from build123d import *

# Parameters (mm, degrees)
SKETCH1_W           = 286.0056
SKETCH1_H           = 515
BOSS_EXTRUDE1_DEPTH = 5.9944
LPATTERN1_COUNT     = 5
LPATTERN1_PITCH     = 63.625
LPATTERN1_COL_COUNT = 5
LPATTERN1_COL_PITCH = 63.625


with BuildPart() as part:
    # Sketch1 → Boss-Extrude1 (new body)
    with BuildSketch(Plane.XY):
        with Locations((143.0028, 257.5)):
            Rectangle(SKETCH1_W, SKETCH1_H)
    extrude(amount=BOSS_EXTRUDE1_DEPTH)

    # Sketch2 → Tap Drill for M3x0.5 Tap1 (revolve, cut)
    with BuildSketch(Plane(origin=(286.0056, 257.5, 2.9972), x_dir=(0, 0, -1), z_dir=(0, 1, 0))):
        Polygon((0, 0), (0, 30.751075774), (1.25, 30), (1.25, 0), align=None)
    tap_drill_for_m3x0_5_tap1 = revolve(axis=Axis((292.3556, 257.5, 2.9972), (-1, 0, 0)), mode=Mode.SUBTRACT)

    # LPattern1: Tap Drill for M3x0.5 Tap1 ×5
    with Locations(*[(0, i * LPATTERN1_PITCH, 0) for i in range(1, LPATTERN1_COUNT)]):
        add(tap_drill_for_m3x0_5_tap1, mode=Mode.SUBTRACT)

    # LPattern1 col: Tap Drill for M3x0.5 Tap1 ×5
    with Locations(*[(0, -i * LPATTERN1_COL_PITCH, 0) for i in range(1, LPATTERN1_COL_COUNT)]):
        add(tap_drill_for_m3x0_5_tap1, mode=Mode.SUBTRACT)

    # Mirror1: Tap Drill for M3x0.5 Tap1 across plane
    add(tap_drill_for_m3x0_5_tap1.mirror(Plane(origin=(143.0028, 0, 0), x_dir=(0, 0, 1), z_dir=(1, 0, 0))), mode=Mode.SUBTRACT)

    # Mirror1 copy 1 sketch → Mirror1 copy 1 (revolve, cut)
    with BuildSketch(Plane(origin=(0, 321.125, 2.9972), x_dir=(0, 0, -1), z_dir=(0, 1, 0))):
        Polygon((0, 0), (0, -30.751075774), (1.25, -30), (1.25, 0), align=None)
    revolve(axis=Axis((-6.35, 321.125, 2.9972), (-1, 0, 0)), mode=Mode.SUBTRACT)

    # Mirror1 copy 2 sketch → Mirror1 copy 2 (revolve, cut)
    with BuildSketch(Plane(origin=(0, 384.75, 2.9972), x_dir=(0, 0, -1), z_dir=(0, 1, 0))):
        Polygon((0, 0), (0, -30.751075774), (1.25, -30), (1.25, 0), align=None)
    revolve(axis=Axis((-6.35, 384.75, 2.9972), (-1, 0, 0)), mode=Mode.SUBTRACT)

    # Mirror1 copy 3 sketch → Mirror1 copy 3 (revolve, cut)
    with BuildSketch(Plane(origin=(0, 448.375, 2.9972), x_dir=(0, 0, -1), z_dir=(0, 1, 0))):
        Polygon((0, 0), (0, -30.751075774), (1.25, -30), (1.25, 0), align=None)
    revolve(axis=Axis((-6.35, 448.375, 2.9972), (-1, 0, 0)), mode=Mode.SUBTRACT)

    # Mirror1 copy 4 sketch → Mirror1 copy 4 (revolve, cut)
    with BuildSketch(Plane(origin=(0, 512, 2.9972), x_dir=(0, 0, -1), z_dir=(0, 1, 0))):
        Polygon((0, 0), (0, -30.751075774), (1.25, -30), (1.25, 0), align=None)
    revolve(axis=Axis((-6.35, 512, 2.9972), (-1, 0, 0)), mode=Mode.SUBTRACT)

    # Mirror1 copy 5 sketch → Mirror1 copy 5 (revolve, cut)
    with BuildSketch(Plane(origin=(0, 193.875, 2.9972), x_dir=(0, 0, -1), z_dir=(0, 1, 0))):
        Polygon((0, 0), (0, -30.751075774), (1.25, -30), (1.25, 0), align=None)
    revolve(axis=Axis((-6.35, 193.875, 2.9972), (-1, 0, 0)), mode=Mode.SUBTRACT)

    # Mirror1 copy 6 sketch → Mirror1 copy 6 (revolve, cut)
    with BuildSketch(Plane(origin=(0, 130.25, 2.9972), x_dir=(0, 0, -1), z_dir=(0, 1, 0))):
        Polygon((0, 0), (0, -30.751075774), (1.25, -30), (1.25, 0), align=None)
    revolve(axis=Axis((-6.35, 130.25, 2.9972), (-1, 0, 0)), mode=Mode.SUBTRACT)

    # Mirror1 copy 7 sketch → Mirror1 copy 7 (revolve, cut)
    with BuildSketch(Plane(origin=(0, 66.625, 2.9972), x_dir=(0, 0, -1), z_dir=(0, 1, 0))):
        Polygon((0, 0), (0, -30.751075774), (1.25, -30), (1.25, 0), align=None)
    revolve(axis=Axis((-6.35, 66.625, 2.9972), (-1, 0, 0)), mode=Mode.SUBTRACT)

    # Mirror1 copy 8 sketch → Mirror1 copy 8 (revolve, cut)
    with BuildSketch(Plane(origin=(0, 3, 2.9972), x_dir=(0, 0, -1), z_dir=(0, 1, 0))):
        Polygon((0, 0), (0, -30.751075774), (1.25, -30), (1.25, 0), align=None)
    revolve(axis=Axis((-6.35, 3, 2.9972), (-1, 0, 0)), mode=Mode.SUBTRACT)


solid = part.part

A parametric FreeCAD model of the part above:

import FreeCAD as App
import Part
import Sketcher
from FreeCAD import Vector
Q = App.Units.Quantity

doc = App.newDocument("Part")
params = doc.addObject("Spreadsheet::Sheet", "Params")
for row, (alias, value) in enumerate([
    ("sketch1_height", "515 mm"),
    ("pad1_length", "5.9944 mm"),
    ("sketch2_width", "30 mm"),
    ("sketch2_height", "1.25 mm"),
    ("groove_angle", "360 deg"),
    ("linearpattern_pitch", "63.625 mm"),
    ("linearpattern2_pitch", "63.625 mm"),
    ("sketch3_width", "30 mm"),
    ("sketch3_height", "1.25 mm"),
    ("groove2_angle", "360 deg"),
    ("sketch4_width", "30 mm"),
    ("sketch4_height", "1.25 mm"),
    ("groove3_angle", "360 deg"),
    ("sketch5_width", "30 mm"),
    ("sketch5_height", "1.25 mm"),
    ("groove4_angle", "360 deg"),
    ("sketch6_width", "30 mm"),
    ("sketch6_height", "1.25 mm"),
    ("groove5_angle", "360 deg"),
    ("sketch7_width", "30 mm"),
    ("sketch7_height", "1.25 mm"),
    ("groove6_angle", "360 deg"),
    ("sketch8_width", "30 mm"),
    ("sketch8_height", "1.25 mm"),
    ("groove7_angle", "360 deg"),
    ("sketch9_width", "30 mm"),
    ("sketch9_height", "1.25 mm"),
    ("groove8_angle", "360 deg"),
    ("sketch10_width", "30 mm"),
    ("sketch10_height", "1.25 mm"),
    ("groove9_angle", "360 deg"),
], start=1):
    params.set(f"A{row}", alias)
    params.set(f"B{row}", "=" + value)
    params.setAlias(f"B{row}", alias)

body = doc.addObject("PartDesign::Body", "Body")

# Sketch on XY plane
sketch1 = doc.addObject("Sketcher::SketchObject", "Sketch")
body.addObject(sketch1)
sketch1.AttachmentSupport = (doc.XY_Plane, [""])
sketch1.MapMode = "FlatFace"
sketch1.addGeometry([
    Part.LineSegment(Vector(0, 515, 0), Vector(0, 0, 0)),
    Part.LineSegment(Vector(0, 0, 0), Vector(286.0056, 0, 0)),
    Part.LineSegment(Vector(286.0056, 0, 0), Vector(286.0056, 515, 0)),
    Part.LineSegment(Vector(286.0056, 515, 0), Vector(0, 515, 0)),
], False)
sketch1.addConstraint([
    Sketcher.Constraint("Coincident", 0, 2, 1, 1),
    Sketcher.Constraint("Coincident", 1, 2, 2, 1),
    Sketcher.Constraint("Coincident", 2, 2, 3, 1),
    Sketcher.Constraint("Coincident", 3, 2, 0, 1),
    Sketcher.Constraint("Vertical", 0),
    Sketcher.Constraint("Horizontal", 1),
    Sketcher.Constraint("Vertical", 2),
    Sketcher.Constraint("Horizontal", 3),
    Sketcher.Constraint("Coincident", 0, 2, -1, 1),
    Sketcher.Constraint("DistanceY", 0, 2, 0, 1, 515.0),
    Sketcher.Constraint("DistanceX", 1, 1, 1, 2, 286.0056),
])
sketch1.setExpression("Constraints[9]", "Params.sketch1_height")
pad1 = doc.addObject("PartDesign::Pad", "Pad")
body.addObject(pad1)
pad1.Profile = sketch1
pad1.setExpression("Length", "Params.pad1_length")

# Sketch on XZ plane
sketch2 = doc.addObject("Sketcher::SketchObject", "Sketch001")
body.addObject(sketch2)
sketch2.AttachmentSupport = (doc.XZ_Plane, [""])
sketch2.MapMode = "FlatFace"
sketch2.AttachmentOffset = App.Placement(Vector(0, 0, -257.5), App.Rotation())
sketch2.addGeometry([
    Part.LineSegment(Vector(255.254524, 2.9972, 0), Vector(286.0056, 2.9972, 0)),
    Part.LineSegment(Vector(286.0056, 2.9972, 0), Vector(286.0056, 1.7472, 0)),
    Part.LineSegment(Vector(286.0056, 1.7472, 0), Vector(256.0056, 1.7472, 0)),
    Part.LineSegment(Vector(256.0056, 1.7472, 0), Vector(255.254524, 2.9972, 0)),
], False)
sketch2.addGeometry(Part.LineSegment(Vector(286.0056, 2.9972, 0), Vector(255.254524, 2.9972, 0)), True)  # axis
sketch2.addConstraint([
    Sketcher.Constraint("Coincident", 0, 2, 1, 1),
    Sketcher.Constraint("Coincident", 1, 2, 2, 1),
    Sketcher.Constraint("Coincident", 2, 2, 3, 1),
    Sketcher.Constraint("Coincident", 3, 2, 0, 1),
    Sketcher.Constraint("Horizontal", 0),
    Sketcher.Constraint("Vertical", 1),
    Sketcher.Constraint("Horizontal", 2),
    Sketcher.Constraint("Horizontal", 4),
    Sketcher.Constraint("Coincident", 4, 1, 0, 2),
    Sketcher.Constraint("Equal", 0, 4),
    Sketcher.Constraint("DistanceX", 2, 2, 2, 1, 30.0),
    Sketcher.Constraint("Angle", 3, Q("121 deg")),
    Sketcher.Constraint("DistanceY", 1, 2, 1, 1, 1.25),
    Sketcher.Constraint("DistanceX", -1, 1, 0, 2, 286.0056),
    Sketcher.Constraint("DistanceY", -1, 1, 0, 2, 2.9972),
])
sketch2.setExpression("Constraints[10]", "Params.sketch2_width")
sketch2.setExpression("Constraints[12]", "Params.sketch2_height")
groove = doc.addObject("PartDesign::Groove", "Groove")
body.addObject(groove)
groove.Profile = sketch2
groove.ReferenceAxis = (sketch2, ["Axis0"])
groove.setExpression("Angle", "Params.groove_angle")
doc.recompute()

linearpattern = doc.addObject("PartDesign::LinearPattern", "LinearPattern")
body.addObject(linearpattern)
linearpattern.Originals = [groove]
linearpattern.Direction = (doc.Y_Axis, [""])
linearpattern.Mode = "offset"
linearpattern.setExpression("Offset", "Params.linearpattern_pitch")
linearpattern.Occurrences = 5
body.Tip = linearpattern
doc.recompute()

linearpattern2 = doc.addObject("PartDesign::LinearPattern", "LinearPattern001")
body.addObject(linearpattern2)
linearpattern2.Originals = [groove]
linearpattern2.Direction = (doc.Y_Axis, [""])
linearpattern2.Mode = "offset"
linearpattern2.setExpression("Offset", "Params.linearpattern2_pitch")
linearpattern2.Occurrences = 5
linearpattern2.Reversed = True
body.Tip = linearpattern2
doc.recompute()

datumplane = doc.addObject("PartDesign::Plane", "DatumPlane")
body.addObject(datumplane)
datumplane.AttachmentSupport = (doc.YZ_Plane, [""])
datumplane.MapMode = "FlatFace"
datumplane.AttachmentOffset = App.Placement(Vector(0, 0, 143.0028), App.Rotation())
mirrored = doc.addObject("PartDesign::Mirrored", "Mirrored")
body.addObject(mirrored)
mirrored.Originals = [groove]
mirrored.MirrorPlane = (datumplane, [""])
body.Tip = mirrored

# Sketch on XZ plane
sketch3 = doc.addObject("Sketcher::SketchObject", "Sketch002")
body.addObject(sketch3)
sketch3.AttachmentSupport = (doc.XZ_Plane, [""])
sketch3.MapMode = "FlatFace"
sketch3.AttachmentOffset = App.Placement(Vector(0, 0, -321.125), App.Rotation())
sketch3.addGeometry([
    Part.LineSegment(Vector(0, 2.9972, 0), Vector(30.751076, 2.9972, 0)),
    Part.LineSegment(Vector(30.751076, 2.9972, 0), Vector(30, 1.7472, 0)),
    Part.LineSegment(Vector(30, 1.7472, 0), Vector(0, 1.7472, 0)),
    Part.LineSegment(Vector(0, 1.7472, 0), Vector(0, 2.9972, 0)),
], False)
sketch3.addGeometry(Part.LineSegment(Vector(30.751076, 2.9972, 0), Vector(0, 2.9972, 0)), True)  # axis
sketch3.addConstraint([
    Sketcher.Constraint("Coincident", 0, 2, 1, 1),
    Sketcher.Constraint("Coincident", 1, 2, 2, 1),
    Sketcher.Constraint("Coincident", 2, 2, 3, 1),
    Sketcher.Constraint("Coincident", 3, 2, 0, 1),
    Sketcher.Constraint("Horizontal", 0),
    Sketcher.Constraint("Horizontal", 2),
    Sketcher.Constraint("Vertical", 3),
    Sketcher.Constraint("Horizontal", 4),
    Sketcher.Constraint("Coincident", 4, 1, 0, 2),
    Sketcher.Constraint("PointOnObject", 2, 2, -2),
    Sketcher.Constraint("PointOnObject", 4, 2, -2),
    Sketcher.Constraint("DistanceX", 2, 2, 2, 1, 30.0),
    Sketcher.Constraint("Angle", 1, Q("-121 deg")),
    Sketcher.Constraint("DistanceY", 3, 1, 3, 2, 1.25),
    Sketcher.Constraint("DistanceY", -1, 1, 0, 2, 2.9972),
])
sketch3.setExpression("Constraints[11]", "Params.sketch3_width")
sketch3.setExpression("Constraints[13]", "Params.sketch3_height")
groove2 = doc.addObject("PartDesign::Groove", "Groove001")
body.addObject(groove2)
groove2.Profile = sketch3
groove2.ReferenceAxis = (sketch3, ["Axis0"])
groove2.setExpression("Angle", "Params.groove2_angle")

# Sketch on XZ plane
sketch4 = doc.addObject("Sketcher::SketchObject", "Sketch003")
body.addObject(sketch4)
sketch4.AttachmentSupport = (doc.XZ_Plane, [""])
sketch4.MapMode = "FlatFace"
sketch4.AttachmentOffset = App.Placement(Vector(0, 0, -384.75), App.Rotation())
sketch4.addGeometry([
    Part.LineSegment(Vector(0, 2.9972, 0), Vector(30.751076, 2.9972, 0)),
    Part.LineSegment(Vector(30.751076, 2.9972, 0), Vector(30, 1.7472, 0)),
    Part.LineSegment(Vector(30, 1.7472, 0), Vector(0, 1.7472, 0)),
    Part.LineSegment(Vector(0, 1.7472, 0), Vector(0, 2.9972, 0)),
], False)
sketch4.addGeometry(Part.LineSegment(Vector(30.751076, 2.9972, 0), Vector(0, 2.9972, 0)), True)  # axis
sketch4.addConstraint([
    Sketcher.Constraint("Coincident", 0, 2, 1, 1),
    Sketcher.Constraint("Coincident", 1, 2, 2, 1),
    Sketcher.Constraint("Coincident", 2, 2, 3, 1),
    Sketcher.Constraint("Coincident", 3, 2, 0, 1),
    Sketcher.Constraint("Horizontal", 0),
    Sketcher.Constraint("Horizontal", 2),
    Sketcher.Constraint("Vertical", 3),
    Sketcher.Constraint("Horizontal", 4),
    Sketcher.Constraint("Coincident", 4, 1, 0, 2),
    Sketcher.Constraint("PointOnObject", 2, 2, -2),
    Sketcher.Constraint("PointOnObject", 4, 2, -2),
    Sketcher.Constraint("DistanceX", 2, 2, 2, 1, 30.0),
    Sketcher.Constraint("Angle", 1, Q("-121 deg")),
    Sketcher.Constraint("DistanceY", 3, 1, 3, 2, 1.25),
    Sketcher.Constraint("DistanceY", -1, 1, 0, 2, 2.9972),
])
sketch4.setExpression("Constraints[11]", "Params.sketch4_width")
sketch4.setExpression("Constraints[13]", "Params.sketch4_height")
groove3 = doc.addObject("PartDesign::Groove", "Groove002")
body.addObject(groove3)
groove3.Profile = sketch4
groove3.ReferenceAxis = (sketch4, ["Axis0"])
groove3.setExpression("Angle", "Params.groove3_angle")

# Sketch on XZ plane
sketch5 = doc.addObject("Sketcher::SketchObject", "Sketch004")
body.addObject(sketch5)
sketch5.AttachmentSupport = (doc.XZ_Plane, [""])
sketch5.MapMode = "FlatFace"
sketch5.AttachmentOffset = App.Placement(Vector(0, 0, -448.375), App.Rotation())
sketch5.addGeometry([
    Part.LineSegment(Vector(0, 2.9972, 0), Vector(30.751076, 2.9972, 0)),
    Part.LineSegment(Vector(30.751076, 2.9972, 0), Vector(30, 1.7472, 0)),
    Part.LineSegment(Vector(30, 1.7472, 0), Vector(0, 1.7472, 0)),
    Part.LineSegment(Vector(0, 1.7472, 0), Vector(0, 2.9972, 0)),
], False)
sketch5.addGeometry(Part.LineSegment(Vector(30.751076, 2.9972, 0), Vector(0, 2.9972, 0)), True)  # axis
sketch5.addConstraint([
    Sketcher.Constraint("Coincident", 0, 2, 1, 1),
    Sketcher.Constraint("Coincident", 1, 2, 2, 1),
    Sketcher.Constraint("Coincident", 2, 2, 3, 1),
    Sketcher.Constraint("Coincident", 3, 2, 0, 1),
    Sketcher.Constraint("Horizontal", 0),
    Sketcher.Constraint("Horizontal", 2),
    Sketcher.Constraint("Vertical", 3),
    Sketcher.Constraint("Horizontal", 4),
    Sketcher.Constraint("Coincident", 4, 1, 0, 2),
    Sketcher.Constraint("PointOnObject", 2, 2, -2),
    Sketcher.Constraint("PointOnObject", 4, 2, -2),
    Sketcher.Constraint("DistanceX", 2, 2, 2, 1, 30.0),
    Sketcher.Constraint("Angle", 1, Q("-121 deg")),
    Sketcher.Constraint("DistanceY", 3, 1, 3, 2, 1.25),
    Sketcher.Constraint("DistanceY", -1, 1, 0, 2, 2.9972),
])
sketch5.setExpression("Constraints[11]", "Params.sketch5_width")
sketch5.setExpression("Constraints[13]", "Params.sketch5_height")
groove4 = doc.addObject("PartDesign::Groove", "Groove003")
body.addObject(groove4)
groove4.Profile = sketch5
groove4.ReferenceAxis = (sketch5, ["Axis0"])
groove4.setExpression("Angle", "Params.groove4_angle")

# Sketch on XZ plane
sketch6 = doc.addObject("Sketcher::SketchObject", "Sketch005")
body.addObject(sketch6)
sketch6.AttachmentSupport = (doc.XZ_Plane, [""])
sketch6.MapMode = "FlatFace"
sketch6.AttachmentOffset = App.Placement(Vector(0, 0, -512), App.Rotation())
sketch6.addGeometry([
    Part.LineSegment(Vector(0, 2.9972, 0), Vector(30.751076, 2.9972, 0)),
    Part.LineSegment(Vector(30.751076, 2.9972, 0), Vector(30, 1.7472, 0)),
    Part.LineSegment(Vector(30, 1.7472, 0), Vector(0, 1.7472, 0)),
    Part.LineSegment(Vector(0, 1.7472, 0), Vector(0, 2.9972, 0)),
], False)
sketch6.addGeometry(Part.LineSegment(Vector(30.751076, 2.9972, 0), Vector(0, 2.9972, 0)), True)  # axis
sketch6.addConstraint([
    Sketcher.Constraint("Coincident", 0, 2, 1, 1),
    Sketcher.Constraint("Coincident", 1, 2, 2, 1),
    Sketcher.Constraint("Coincident", 2, 2, 3, 1),
    Sketcher.Constraint("Coincident", 3, 2, 0, 1),
    Sketcher.Constraint("Horizontal", 0),
    Sketcher.Constraint("Horizontal", 2),
    Sketcher.Constraint("Vertical", 3),
    Sketcher.Constraint("Horizontal", 4),
    Sketcher.Constraint("Coincident", 4, 1, 0, 2),
    Sketcher.Constraint("PointOnObject", 2, 2, -2),
    Sketcher.Constraint("PointOnObject", 4, 2, -2),
    Sketcher.Constraint("DistanceX", 2, 2, 2, 1, 30.0),
    Sketcher.Constraint("Angle", 1, Q("-121 deg")),
    Sketcher.Constraint("DistanceY", 3, 1, 3, 2, 1.25),
    Sketcher.Constraint("DistanceY", -1, 1, 0, 2, 2.9972),
])
sketch6.setExpression("Constraints[11]", "Params.sketch6_width")
sketch6.setExpression("Constraints[13]", "Params.sketch6_height")
groove5 = doc.addObject("PartDesign::Groove", "Groove004")
body.addObject(groove5)
groove5.Profile = sketch6
groove5.ReferenceAxis = (sketch6, ["Axis0"])
groove5.setExpression("Angle", "Params.groove5_angle")

# Sketch on XZ plane
sketch7 = doc.addObject("Sketcher::SketchObject", "Sketch006")
body.addObject(sketch7)
sketch7.AttachmentSupport = (doc.XZ_Plane, [""])
sketch7.MapMode = "FlatFace"
sketch7.AttachmentOffset = App.Placement(Vector(0, 0, -193.875), App.Rotation())
sketch7.addGeometry([
    Part.LineSegment(Vector(0, 2.9972, 0), Vector(30.751076, 2.9972, 0)),
    Part.LineSegment(Vector(30.751076, 2.9972, 0), Vector(30, 1.7472, 0)),
    Part.LineSegment(Vector(30, 1.7472, 0), Vector(0, 1.7472, 0)),
    Part.LineSegment(Vector(0, 1.7472, 0), Vector(0, 2.9972, 0)),
], False)
sketch7.addGeometry(Part.LineSegment(Vector(30.751076, 2.9972, 0), Vector(0, 2.9972, 0)), True)  # axis
sketch7.addConstraint([
    Sketcher.Constraint("Coincident", 0, 2, 1, 1),
    Sketcher.Constraint("Coincident", 1, 2, 2, 1),
    Sketcher.Constraint("Coincident", 2, 2, 3, 1),
    Sketcher.Constraint("Coincident", 3, 2, 0, 1),
    Sketcher.Constraint("Horizontal", 0),
    Sketcher.Constraint("Horizontal", 2),
    Sketcher.Constraint("Vertical", 3),
    Sketcher.Constraint("Horizontal", 4),
    Sketcher.Constraint("Coincident", 4, 1, 0, 2),
    Sketcher.Constraint("PointOnObject", 2, 2, -2),
    Sketcher.Constraint("PointOnObject", 4, 2, -2),
    Sketcher.Constraint("DistanceX", 2, 2, 2, 1, 30.0),
    Sketcher.Constraint("Angle", 1, Q("-121 deg")),
    Sketcher.Constraint("DistanceY", 3, 1, 3, 2, 1.25),
    Sketcher.Constraint("DistanceY", -1, 1, 0, 2, 2.9972),
])
sketch7.setExpression("Constraints[11]", "Params.sketch7_width")
sketch7.setExpression("Constraints[13]", "Params.sketch7_height")
groove6 = doc.addObject("PartDesign::Groove", "Groove005")
body.addObject(groove6)
groove6.Profile = sketch7
groove6.ReferenceAxis = (sketch7, ["Axis0"])
groove6.setExpression("Angle", "Params.groove6_angle")

# Sketch on XZ plane
sketch8 = doc.addObject("Sketcher::SketchObject", "Sketch007")
body.addObject(sketch8)
sketch8.AttachmentSupport = (doc.XZ_Plane, [""])
sketch8.MapMode = "FlatFace"
sketch8.AttachmentOffset = App.Placement(Vector(0, 0, -130.25), App.Rotation())
sketch8.addGeometry([
    Part.LineSegment(Vector(0, 2.9972, 0), Vector(30.751076, 2.9972, 0)),
    Part.LineSegment(Vector(30.751076, 2.9972, 0), Vector(30, 1.7472, 0)),
    Part.LineSegment(Vector(30, 1.7472, 0), Vector(0, 1.7472, 0)),
    Part.LineSegment(Vector(0, 1.7472, 0), Vector(0, 2.9972, 0)),
], False)
sketch8.addGeometry(Part.LineSegment(Vector(30.751076, 2.9972, 0), Vector(0, 2.9972, 0)), True)  # axis
sketch8.addConstraint([
    Sketcher.Constraint("Coincident", 0, 2, 1, 1),
    Sketcher.Constraint("Coincident", 1, 2, 2, 1),
    Sketcher.Constraint("Coincident", 2, 2, 3, 1),
    Sketcher.Constraint("Coincident", 3, 2, 0, 1),
    Sketcher.Constraint("Horizontal", 0),
    Sketcher.Constraint("Horizontal", 2),
    Sketcher.Constraint("Vertical", 3),
    Sketcher.Constraint("Horizontal", 4),
    Sketcher.Constraint("Coincident", 4, 1, 0, 2),
    Sketcher.Constraint("PointOnObject", 2, 2, -2),
    Sketcher.Constraint("PointOnObject", 4, 2, -2),
    Sketcher.Constraint("DistanceX", 2, 2, 2, 1, 30.0),
    Sketcher.Constraint("Angle", 1, Q("-121 deg")),
    Sketcher.Constraint("DistanceY", 3, 1, 3, 2, 1.25),
    Sketcher.Constraint("DistanceY", -1, 1, 0, 2, 2.9972),
])
sketch8.setExpression("Constraints[11]", "Params.sketch8_width")
sketch8.setExpression("Constraints[13]", "Params.sketch8_height")
groove7 = doc.addObject("PartDesign::Groove", "Groove006")
body.addObject(groove7)
groove7.Profile = sketch8
groove7.ReferenceAxis = (sketch8, ["Axis0"])
groove7.setExpression("Angle", "Params.groove7_angle")

# Sketch on XZ plane
sketch9 = doc.addObject("Sketcher::SketchObject", "Sketch008")
body.addObject(sketch9)
sketch9.AttachmentSupport = (doc.XZ_Plane, [""])
sketch9.MapMode = "FlatFace"
sketch9.AttachmentOffset = App.Placement(Vector(0, 0, -66.625), App.Rotation())
sketch9.addGeometry([
    Part.LineSegment(Vector(0, 2.9972, 0), Vector(30.751076, 2.9972, 0)),
    Part.LineSegment(Vector(30.751076, 2.9972, 0), Vector(30, 1.7472, 0)),
    Part.LineSegment(Vector(30, 1.7472, 0), Vector(0, 1.7472, 0)),
    Part.LineSegment(Vector(0, 1.7472, 0), Vector(0, 2.9972, 0)),
], False)
sketch9.addGeometry(Part.LineSegment(Vector(30.751076, 2.9972, 0), Vector(0, 2.9972, 0)), True)  # axis
sketch9.addConstraint([
    Sketcher.Constraint("Coincident", 0, 2, 1, 1),
    Sketcher.Constraint("Coincident", 1, 2, 2, 1),
    Sketcher.Constraint("Coincident", 2, 2, 3, 1),
    Sketcher.Constraint("Coincident", 3, 2, 0, 1),
    Sketcher.Constraint("Horizontal", 0),
    Sketcher.Constraint("Horizontal", 2),
    Sketcher.Constraint("Vertical", 3),
    Sketcher.Constraint("Horizontal", 4),
    Sketcher.Constraint("Coincident", 4, 1, 0, 2),
    Sketcher.Constraint("PointOnObject", 2, 2, -2),
    Sketcher.Constraint("PointOnObject", 4, 2, -2),
    Sketcher.Constraint("DistanceX", 2, 2, 2, 1, 30.0),
    Sketcher.Constraint("Angle", 1, Q("-121 deg")),
    Sketcher.Constraint("DistanceY", 3, 1, 3, 2, 1.25),
    Sketcher.Constraint("DistanceY", -1, 1, 0, 2, 2.9972),
])
sketch9.setExpression("Constraints[11]", "Params.sketch9_width")
sketch9.setExpression("Constraints[13]", "Params.sketch9_height")
groove8 = doc.addObject("PartDesign::Groove", "Groove007")
body.addObject(groove8)
groove8.Profile = sketch9
groove8.ReferenceAxis = (sketch9, ["Axis0"])
groove8.setExpression("Angle", "Params.groove8_angle")

# Sketch on XZ plane
sketch10 = doc.addObject("Sketcher::SketchObject", "Sketch009")
body.addObject(sketch10)
sketch10.AttachmentSupport = (doc.XZ_Plane, [""])
sketch10.MapMode = "FlatFace"
sketch10.AttachmentOffset = App.Placement(Vector(0, 0, -3), App.Rotation())
sketch10.addGeometry([
    Part.LineSegment(Vector(0, 2.9972, 0), Vector(30.751076, 2.9972, 0)),
    Part.LineSegment(Vector(30.751076, 2.9972, 0), Vector(30, 1.7472, 0)),
    Part.LineSegment(Vector(30, 1.7472, 0), Vector(0, 1.7472, 0)),
    Part.LineSegment(Vector(0, 1.7472, 0), Vector(0, 2.9972, 0)),
], False)
sketch10.addGeometry(Part.LineSegment(Vector(30.751076, 2.9972, 0), Vector(0, 2.9972, 0)), True)  # axis
sketch10.addConstraint([
    Sketcher.Constraint("Coincident", 0, 2, 1, 1),
    Sketcher.Constraint("Coincident", 1, 2, 2, 1),
    Sketcher.Constraint("Coincident", 2, 2, 3, 1),
    Sketcher.Constraint("Coincident", 3, 2, 0, 1),
    Sketcher.Constraint("Horizontal", 0),
    Sketcher.Constraint("Horizontal", 2),
    Sketcher.Constraint("Vertical", 3),
    Sketcher.Constraint("Horizontal", 4),
    Sketcher.Constraint("Coincident", 4, 1, 0, 2),
    Sketcher.Constraint("PointOnObject", 2, 2, -2),
    Sketcher.Constraint("PointOnObject", 4, 2, -2),
    Sketcher.Constraint("DistanceX", 2, 2, 2, 1, 30.0),
    Sketcher.Constraint("Angle", 1, Q("-121 deg")),
    Sketcher.Constraint("DistanceY", 3, 1, 3, 2, 1.25),
    Sketcher.Constraint("DistanceY", -1, 1, 0, 2, 2.9972),
])
sketch10.setExpression("Constraints[11]", "Params.sketch10_width")
sketch10.setExpression("Constraints[13]", "Params.sketch10_height")
groove9 = doc.addObject("PartDesign::Groove", "Groove008")
body.addObject(groove9)
groove9.Profile = sketch10
groove9.ReferenceAxis = (sketch10, ["Axis0"])
groove9.setExpression("Angle", "Params.groove9_angle")

doc.recompute()
